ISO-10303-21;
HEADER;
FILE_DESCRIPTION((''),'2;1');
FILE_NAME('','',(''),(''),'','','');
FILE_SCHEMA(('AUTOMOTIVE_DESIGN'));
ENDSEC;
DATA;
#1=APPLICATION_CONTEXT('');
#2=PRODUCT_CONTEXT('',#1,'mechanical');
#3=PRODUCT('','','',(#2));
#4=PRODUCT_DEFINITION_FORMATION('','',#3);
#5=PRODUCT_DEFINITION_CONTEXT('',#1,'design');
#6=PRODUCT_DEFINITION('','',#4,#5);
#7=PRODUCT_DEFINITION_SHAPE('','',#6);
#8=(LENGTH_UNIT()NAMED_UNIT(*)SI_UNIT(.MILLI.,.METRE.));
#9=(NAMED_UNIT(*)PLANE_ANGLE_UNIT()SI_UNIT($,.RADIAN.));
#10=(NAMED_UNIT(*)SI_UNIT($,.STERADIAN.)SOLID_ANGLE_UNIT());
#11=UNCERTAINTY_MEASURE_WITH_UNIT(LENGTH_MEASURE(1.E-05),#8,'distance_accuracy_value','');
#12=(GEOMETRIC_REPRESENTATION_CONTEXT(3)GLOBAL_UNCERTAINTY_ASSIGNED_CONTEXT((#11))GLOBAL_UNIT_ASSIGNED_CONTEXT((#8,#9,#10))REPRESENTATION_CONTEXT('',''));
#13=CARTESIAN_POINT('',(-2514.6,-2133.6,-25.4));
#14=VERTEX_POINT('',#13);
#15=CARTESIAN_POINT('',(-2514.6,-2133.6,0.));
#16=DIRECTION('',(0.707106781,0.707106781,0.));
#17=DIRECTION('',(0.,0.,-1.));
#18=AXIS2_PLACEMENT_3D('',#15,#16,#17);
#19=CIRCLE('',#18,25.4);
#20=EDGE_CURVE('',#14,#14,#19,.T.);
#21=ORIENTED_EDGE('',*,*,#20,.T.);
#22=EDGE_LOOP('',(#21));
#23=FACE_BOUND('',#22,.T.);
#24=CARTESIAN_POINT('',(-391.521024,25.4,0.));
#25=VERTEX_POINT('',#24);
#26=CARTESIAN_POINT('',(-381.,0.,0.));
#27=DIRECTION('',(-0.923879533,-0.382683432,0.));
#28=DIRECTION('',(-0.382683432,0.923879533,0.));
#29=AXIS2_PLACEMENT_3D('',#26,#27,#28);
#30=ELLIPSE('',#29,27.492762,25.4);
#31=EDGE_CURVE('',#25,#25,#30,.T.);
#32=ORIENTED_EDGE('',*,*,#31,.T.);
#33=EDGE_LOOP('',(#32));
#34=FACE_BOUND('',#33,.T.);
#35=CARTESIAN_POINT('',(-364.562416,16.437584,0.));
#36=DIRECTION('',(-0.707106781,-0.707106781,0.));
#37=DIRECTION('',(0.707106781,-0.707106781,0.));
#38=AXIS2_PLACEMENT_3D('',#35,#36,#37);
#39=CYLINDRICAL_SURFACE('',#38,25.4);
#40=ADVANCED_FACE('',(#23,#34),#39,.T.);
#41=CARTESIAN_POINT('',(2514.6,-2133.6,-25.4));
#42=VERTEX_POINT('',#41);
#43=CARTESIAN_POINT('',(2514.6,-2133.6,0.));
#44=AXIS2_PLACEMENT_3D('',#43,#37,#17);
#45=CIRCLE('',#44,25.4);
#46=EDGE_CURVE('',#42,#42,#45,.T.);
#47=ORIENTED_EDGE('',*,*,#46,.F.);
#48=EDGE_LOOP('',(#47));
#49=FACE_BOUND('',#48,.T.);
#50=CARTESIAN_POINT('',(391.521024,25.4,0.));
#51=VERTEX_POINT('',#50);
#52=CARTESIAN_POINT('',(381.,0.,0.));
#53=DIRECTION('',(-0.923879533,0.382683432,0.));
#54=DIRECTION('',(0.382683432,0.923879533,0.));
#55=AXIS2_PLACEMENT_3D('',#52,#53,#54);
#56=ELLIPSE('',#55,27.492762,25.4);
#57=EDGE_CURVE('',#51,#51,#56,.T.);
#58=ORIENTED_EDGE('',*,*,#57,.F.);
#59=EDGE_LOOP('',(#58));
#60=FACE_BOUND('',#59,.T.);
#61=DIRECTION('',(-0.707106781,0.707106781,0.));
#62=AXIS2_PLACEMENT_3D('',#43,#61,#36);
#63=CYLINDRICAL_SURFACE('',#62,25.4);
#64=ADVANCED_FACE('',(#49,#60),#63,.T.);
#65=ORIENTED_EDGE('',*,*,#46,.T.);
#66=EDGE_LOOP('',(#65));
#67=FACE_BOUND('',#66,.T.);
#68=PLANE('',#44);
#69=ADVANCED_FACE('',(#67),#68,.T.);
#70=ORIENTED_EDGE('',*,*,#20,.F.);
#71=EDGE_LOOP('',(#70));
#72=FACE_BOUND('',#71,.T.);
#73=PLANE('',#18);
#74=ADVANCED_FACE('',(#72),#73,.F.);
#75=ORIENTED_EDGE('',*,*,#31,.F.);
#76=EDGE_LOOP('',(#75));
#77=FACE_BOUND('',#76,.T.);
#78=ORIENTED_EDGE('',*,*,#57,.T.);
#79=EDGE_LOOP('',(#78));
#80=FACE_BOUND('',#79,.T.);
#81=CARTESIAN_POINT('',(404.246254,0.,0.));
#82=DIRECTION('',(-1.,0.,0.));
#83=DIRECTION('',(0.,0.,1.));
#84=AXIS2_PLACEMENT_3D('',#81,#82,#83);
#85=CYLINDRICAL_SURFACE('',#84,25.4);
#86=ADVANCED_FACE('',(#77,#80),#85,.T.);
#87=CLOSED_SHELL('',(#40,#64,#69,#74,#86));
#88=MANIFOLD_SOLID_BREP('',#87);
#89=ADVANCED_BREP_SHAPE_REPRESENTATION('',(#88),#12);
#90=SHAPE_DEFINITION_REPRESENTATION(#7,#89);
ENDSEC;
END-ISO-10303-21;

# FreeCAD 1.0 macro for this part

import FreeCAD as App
import Part
import Sketcher
Q = App.Units.Quantity

doc = App.newDocument("Part")
body = doc.addObject("PartDesign::Body", "Body")

sketch1 = body.newObject("Sketcher::SketchObject", "Sketch")
sketch1.AttachmentSupport = (doc.getObject("YZ_Plane"), [""])
sketch1.MapMode = "FlatFace"
sketch1.addGeometry(Part.Circle(App.Vector(0, 0, 0), App.Vector(0, 0, 1), 25), False)
sketch1.addConstraint([
    Sketcher.Constraint("Coincident", 0, 3, -1, 1),
    Sketcher.Constraint("Diameter", 0, Q("2 in")),
])

sketch2 = body.newObject("Sketcher::SketchObject", "Sketch001")
sketch2.AttachmentSupport = (doc.getObject("XY_Plane"), [""])
sketch2.MapMode = "FlatFace"
sketch2.addGeometry([
    Part.LineSegment(App.Vector(-2515, -2134, 0), App.Vector(-381, 0, 0)),
    Part.LineSegment(App.Vector(-381, 0, 0), App.Vector(381, 0, 0)),
    Part.LineSegment(App.Vector(381, 0, 0), App.Vector(2515, -2134, 0)),
], False)
sketch2.addConstraint([
    Sketcher.Constraint("Coincident", 0, 2, 1, 1),
    Sketcher.Constraint("Coincident", 1, 2, 2, 1),
    Sketcher.Constraint("Horizontal", 1),
    Sketcher.Constraint("Symmetric", 0, 2, 1, 2, -1, 1),
    Sketcher.Constraint("Symmetric", 0, 1, 2, 2, -2),
    Sketcher.Constraint("Perpendicular", 0, 2),
    Sketcher.Constraint("DistanceX", 1, 1, 1, 2, Q("30 in")),
    Sketcher.Constraint("DistanceX", 0, 1, -1, 1, Q("99 in")),
])
doc.recompute()

additivepipe = body.newObject("PartDesign::AdditivePipe", "AdditivePipe")
additivepipe.Profile = sketch1
additivepipe.Spine = (sketch2, ["Edge1", "Edge2", "Edge3"])
additivepipe.Transition = "Right corner"

doc.recompute()
